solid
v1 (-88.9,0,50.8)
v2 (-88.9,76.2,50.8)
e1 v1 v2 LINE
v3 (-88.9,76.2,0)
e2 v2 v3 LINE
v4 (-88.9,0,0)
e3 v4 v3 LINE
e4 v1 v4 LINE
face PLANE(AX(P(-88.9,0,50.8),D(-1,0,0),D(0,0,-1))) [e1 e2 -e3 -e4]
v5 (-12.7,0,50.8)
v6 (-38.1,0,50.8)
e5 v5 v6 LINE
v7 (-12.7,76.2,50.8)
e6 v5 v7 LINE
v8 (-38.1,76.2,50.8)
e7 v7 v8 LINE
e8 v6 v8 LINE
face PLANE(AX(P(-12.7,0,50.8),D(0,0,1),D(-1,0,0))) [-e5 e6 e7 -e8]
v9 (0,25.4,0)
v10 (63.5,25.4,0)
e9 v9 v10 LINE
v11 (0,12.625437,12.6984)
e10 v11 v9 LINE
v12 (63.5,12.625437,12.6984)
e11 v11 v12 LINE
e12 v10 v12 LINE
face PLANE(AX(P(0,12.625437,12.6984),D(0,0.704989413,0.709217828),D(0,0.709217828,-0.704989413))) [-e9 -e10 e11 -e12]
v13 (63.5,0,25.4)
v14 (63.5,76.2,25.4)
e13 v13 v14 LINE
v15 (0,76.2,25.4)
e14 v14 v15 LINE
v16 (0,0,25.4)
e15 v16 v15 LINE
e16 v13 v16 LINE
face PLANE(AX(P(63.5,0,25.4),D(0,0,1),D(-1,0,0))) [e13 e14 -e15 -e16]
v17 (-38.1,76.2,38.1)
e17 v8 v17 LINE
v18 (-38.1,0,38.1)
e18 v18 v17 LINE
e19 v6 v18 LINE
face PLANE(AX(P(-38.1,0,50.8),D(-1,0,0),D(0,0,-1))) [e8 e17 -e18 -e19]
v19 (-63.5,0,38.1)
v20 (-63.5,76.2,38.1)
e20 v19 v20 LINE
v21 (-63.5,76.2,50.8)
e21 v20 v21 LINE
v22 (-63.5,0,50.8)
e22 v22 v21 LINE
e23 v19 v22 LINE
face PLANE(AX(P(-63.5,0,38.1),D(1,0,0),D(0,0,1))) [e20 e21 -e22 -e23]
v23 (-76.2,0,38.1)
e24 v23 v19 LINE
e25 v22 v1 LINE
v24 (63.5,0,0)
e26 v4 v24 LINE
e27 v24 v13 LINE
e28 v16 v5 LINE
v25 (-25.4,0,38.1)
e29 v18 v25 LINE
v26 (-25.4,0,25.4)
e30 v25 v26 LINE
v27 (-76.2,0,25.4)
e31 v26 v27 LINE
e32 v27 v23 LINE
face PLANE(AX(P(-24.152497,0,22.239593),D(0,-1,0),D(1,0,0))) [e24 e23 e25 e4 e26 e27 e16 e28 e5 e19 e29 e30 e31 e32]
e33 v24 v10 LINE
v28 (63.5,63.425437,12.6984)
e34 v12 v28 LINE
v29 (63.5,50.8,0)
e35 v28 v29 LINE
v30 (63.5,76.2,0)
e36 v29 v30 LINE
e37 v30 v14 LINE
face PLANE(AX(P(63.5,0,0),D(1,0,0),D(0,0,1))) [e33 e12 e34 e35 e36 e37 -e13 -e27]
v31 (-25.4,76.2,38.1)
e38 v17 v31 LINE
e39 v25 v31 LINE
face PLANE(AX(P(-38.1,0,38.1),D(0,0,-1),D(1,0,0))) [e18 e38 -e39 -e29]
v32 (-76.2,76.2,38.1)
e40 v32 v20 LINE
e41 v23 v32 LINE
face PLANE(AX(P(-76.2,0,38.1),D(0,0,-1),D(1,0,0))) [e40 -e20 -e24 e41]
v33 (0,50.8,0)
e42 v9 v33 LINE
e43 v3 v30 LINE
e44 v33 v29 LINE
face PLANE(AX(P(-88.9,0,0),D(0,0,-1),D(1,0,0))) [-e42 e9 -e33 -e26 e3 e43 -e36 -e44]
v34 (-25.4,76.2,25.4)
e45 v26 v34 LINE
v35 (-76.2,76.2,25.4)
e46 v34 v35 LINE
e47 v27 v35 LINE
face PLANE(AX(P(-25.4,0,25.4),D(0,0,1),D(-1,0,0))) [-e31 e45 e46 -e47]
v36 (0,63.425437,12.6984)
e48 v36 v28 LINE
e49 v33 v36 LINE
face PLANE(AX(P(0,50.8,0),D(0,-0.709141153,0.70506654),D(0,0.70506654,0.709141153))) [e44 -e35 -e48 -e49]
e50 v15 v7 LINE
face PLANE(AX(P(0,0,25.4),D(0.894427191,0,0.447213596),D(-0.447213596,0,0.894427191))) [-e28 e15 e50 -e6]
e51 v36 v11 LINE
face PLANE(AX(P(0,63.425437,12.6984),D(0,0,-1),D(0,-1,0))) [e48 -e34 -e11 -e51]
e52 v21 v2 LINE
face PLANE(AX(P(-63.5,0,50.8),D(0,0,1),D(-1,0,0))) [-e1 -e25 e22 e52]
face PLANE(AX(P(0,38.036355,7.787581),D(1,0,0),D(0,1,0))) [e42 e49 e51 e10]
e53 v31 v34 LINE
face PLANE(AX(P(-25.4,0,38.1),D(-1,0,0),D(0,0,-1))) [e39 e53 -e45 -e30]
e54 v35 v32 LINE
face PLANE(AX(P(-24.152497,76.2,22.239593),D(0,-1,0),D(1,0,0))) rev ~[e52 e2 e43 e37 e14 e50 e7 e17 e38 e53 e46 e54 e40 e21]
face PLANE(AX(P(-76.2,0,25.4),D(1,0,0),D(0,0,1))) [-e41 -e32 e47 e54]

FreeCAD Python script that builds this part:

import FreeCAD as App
import Part
import Sketcher
from FreeCAD import Vector
Q = App.Units.Quantity

doc = App.newDocument("Part")
body = doc.addObject("PartDesign::Body", "Body")

sketch1 = body.newObject("Sketcher::SketchObject", "Sketch")
sketch1.AttachmentSupport = (doc.getObject("XZ_Plane"), [""])
sketch1.MapMode = "FlatFace"
sketch1.addGeometry([
    Part.LineSegment(Vector(-89, 51, 0), Vector(-89, 0, 0)),
    Part.LineSegment(Vector(-89, 0, 0), Vector(64, 0, 0)),
    Part.LineSegment(Vector(64, 0, 0), Vector(64, 25, 0)),
    Part.LineSegment(Vector(64, 25, 0), Vector(0, 25, 0)),
    Part.LineSegment(Vector(0, 25, 0), Vector(-13, 51, 0)),
    Part.LineSegment(Vector(-13, 51, 0), Vector(-38, 51, 0)),
    Part.LineSegment(Vector(-38, 51, 0), Vector(-38, 38, 0)),
    Part.LineSegment(Vector(-38, 38, 0), Vector(-25, 38, 0)),
    Part.LineSegment(Vector(-25, 38, 0), Vector(-25, 25, 0)),
    Part.LineSegment(Vector(-25, 25, 0), Vector(-76, 25, 0)),
    Part.LineSegment(Vector(-76, 25, 0), Vector(-76, 38, 0)),
    Part.LineSegment(Vector(-76, 38, 0), Vector(-64, 38, 0)),
    Part.LineSegment(Vector(-64, 38, 0), Vector(-64, 51, 0)),
    Part.LineSegment(Vector(-64, 51, 0), Vector(-89, 51, 0)),
], False)
sketch1.addConstraint([
    Sketcher.Constraint("Coincident", 0, 2, 1, 1),
    Sketcher.Constraint("Coincident", 1, 2, 2, 1),
    Sketcher.Constraint("Coincident", 2, 2, 3, 1),
    Sketcher.Constraint("Coincident", 3, 2, 4, 1),
    Sketcher.Constraint("Coincident", 4, 2, 5, 1),
    Sketcher.Constraint("Coincident", 5, 2, 6, 1),
    Sketcher.Constraint("Coincident", 6, 2, 7, 1),
    Sketcher.Constraint("Coincident", 7, 2, 8, 1),
    Sketcher.Constraint("Coincident", 8, 2, 9, 1),
    Sketcher.Constraint("Coincident", 9, 2, 10, 1),
    Sketcher.Constraint("Coincident", 10, 2, 11, 1),
    Sketcher.Constraint("Coincident", 11, 2, 12, 1),
    Sketcher.Constraint("Coincident", 12, 2, 13, 1),
    Sketcher.Constraint("Coincident", 13, 2, 0, 1),
    Sketcher.Constraint("Vertical", 0),
    Sketcher.Constraint("Horizontal", 1),
    Sketcher.Constraint("Vertical", 2),
    Sketcher.Constraint("Horizontal", 3),
    Sketcher.Constraint("Horizontal", 5),
    Sketcher.Constraint("Vertical", 6),
    Sketcher.Constraint("Horizontal", 7),
    Sketcher.Constraint("Vertical", 8),
    Sketcher.Constraint("Horizontal", 9),
    Sketcher.Constraint("Vertical", 10),
    Sketcher.Constraint("Horizontal", 11),
    Sketcher.Constraint("Vertical", 12),
    Sketcher.Constraint("Horizontal", 13),
    Sketcher.Constraint("PointOnObject", 0, 2, -1),
    Sketcher.Constraint("PointOnObject", 3, 2, -2),
    Sketcher.Constraint("Horizontal", 3, 2, 8, 2),
    Sketcher.Constraint("Horizontal", 7, 2, 10, 2),
    Sketcher.Constraint("Horizontal", 5, 2, 12, 2),
    Sketcher.Constraint("Equal", 7, 11),
    Sketcher.Constraint("Equal", 5, 13),
    Sketcher.Constraint("Equal", 9, 0),
    Sketcher.Constraint("Equal", 13, 2),
    Sketcher.Constraint("Equal", 11, 6),
    Sketcher.Constraint("Equal", 6, 8),
    Sketcher.Constraint("DistanceX", 1, 1, 1, 2, Q("6 in")),
    Sketcher.Constraint("DistanceX", 5, 2, 5, 1, Q("1 in")),
    Sketcher.Constraint("DistanceX", 9, 2, 9, 1, Q("2 in")),
    Sketcher.Constraint("DistanceX", 3, 2, 3, 1, Q("2.5 in")),
])
pad1 = body.newObject("PartDesign::Pad", "Pad")
pad1.Profile = sketch1
pad1.Length = Q("3 in")
pad1.Reversed = True

sketch2 = body.newObject("Sketcher::SketchObject", "Sketch001")
sketch2.AttachmentSupport = (doc.getObject("YZ_Plane"), [""])
sketch2.MapMode = "FlatFace"
sketch2.addGeometry([
    Part.LineSegment(Vector(63, 13, 0), Vector(13, 13, 0)),
    Part.LineSegment(Vector(13, 13, 0), Vector(25, 0, 0)),
    Part.LineSegment(Vector(25, 0, 0), Vector(51, 0, 0)),
    Part.LineSegment(Vector(51, 0, 0), Vector(63, 13, 0)),
], False)
sketch2.addConstraint([
    Sketcher.Constraint("Coincident", 0, 2, 1, 1),
    Sketcher.Constraint("Coincident", 1, 2, 2, 1),
    Sketcher.Constraint("Coincident", 2, 2, 3, 1),
    Sketcher.Constraint("Coincident", 3, 2, 0, 1),
    Sketcher.Constraint("Horizontal", 0),
    Sketcher.Constraint("Horizontal", 2),
    Sketcher.Constraint("PointOnObject", 1, 2, -1),
    Sketcher.Constraint("DistanceX", 0, 2, 0, 1, Q("2 in")),
    Sketcher.Constraint("DistanceX", 2, 1, 2, 2, Q("1 in")),
    Sketcher.Constraint("DistanceX", -1, 1, 1, 2, Q("1 in")),
    Sketcher.Constraint("DistanceY", -1, 1, 0, 2, Q("12.6984 mm")),
    Sketcher.Constraint("Distance", 3, Q("17.906731 mm")),
])
pocket1 = body.newObject("PartDesign::Pocket", "Pocket")
pocket1.Profile = sketch2
pocket1.Length = Q("8 in")
pocket1.Reversed = True

doc.recompute()
